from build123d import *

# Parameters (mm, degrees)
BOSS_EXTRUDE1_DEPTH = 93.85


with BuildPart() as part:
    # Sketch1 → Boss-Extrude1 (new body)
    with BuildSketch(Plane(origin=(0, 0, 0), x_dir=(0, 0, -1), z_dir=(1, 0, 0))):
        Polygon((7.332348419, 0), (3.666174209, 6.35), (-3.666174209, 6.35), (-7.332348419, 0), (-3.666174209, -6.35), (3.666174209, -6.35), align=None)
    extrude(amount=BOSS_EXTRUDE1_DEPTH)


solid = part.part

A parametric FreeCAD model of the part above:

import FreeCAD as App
import Part
import Sketcher
from FreeCAD import Vector
Q = App.Units.Quantity


def add_polygon(sketch, points):
    """Adds a closed chain of lines whose ends are joined by coincident constraints."""
    first, n = sketch.GeometryCount, len(points)
    for a, b in zip(points, points[1:] + points[:1]):
        sketch.addGeometry(Part.LineSegment(App.Vector(*a, 0), App.Vector(*b, 0)), False)
    for i in range(n):
        sketch.addConstraint(Sketcher.Constraint("Coincident", first + i, 2, first + (i + 1) % n, 1))

doc = App.newDocument("Part")
body = doc.addObject("PartDesign::Body", "Body")

# Sketch on YZ plane
sketch1 = body.newObject("Sketcher::SketchObject", "Sketch")
sketch1.AttachmentSupport = (doc.getObject("YZ_Plane"), [""])
sketch1.MapMode = "FlatFace"
add_polygon(sketch1, [(0, -7), (6, -4), (6, 4), (0, 7), (-6, 4), (-6, -4)])  # lines 0-5
sketch1.addConstraint(Sketcher.Constraint("Vertical", 1))
sketch1.addConstraint(Sketcher.Constraint("Vertical", 4))
sketch1.addConstraint(Sketcher.Constraint("Symmetric", 0, 2, 3, 2, -1, 1))
sketch1.addConstraint(Sketcher.Constraint("Symmetric", 2, 2, 5, 2, -1, 1))
sketch1.addConstraint(Sketcher.Constraint("PointOnObject", 2, 2, -2))
sketch1.addConstraint(Sketcher.Constraint("Parallel", 2, 5))
sketch1.addConstraint(Sketcher.Constraint("Horizontal", 1, 2, 3, 2))
sketch1.addConstraint(Sketcher.Constraint("Angle", 0, Q("30 deg")))
sketch1.addConstraint(Sketcher.Constraint("DistanceX", 3, 2, 1, 2, Q("12.7 mm")))
sketch1.addConstraint(Sketcher.Constraint("DistanceY", 1, 1, 1, 2, Q("7.332348 mm")))
pad1 = body.newObject("PartDesign::Pad", "Pad")
pad1.Profile = sketch1
pad1.Length = 93.85

doc.recompute()
